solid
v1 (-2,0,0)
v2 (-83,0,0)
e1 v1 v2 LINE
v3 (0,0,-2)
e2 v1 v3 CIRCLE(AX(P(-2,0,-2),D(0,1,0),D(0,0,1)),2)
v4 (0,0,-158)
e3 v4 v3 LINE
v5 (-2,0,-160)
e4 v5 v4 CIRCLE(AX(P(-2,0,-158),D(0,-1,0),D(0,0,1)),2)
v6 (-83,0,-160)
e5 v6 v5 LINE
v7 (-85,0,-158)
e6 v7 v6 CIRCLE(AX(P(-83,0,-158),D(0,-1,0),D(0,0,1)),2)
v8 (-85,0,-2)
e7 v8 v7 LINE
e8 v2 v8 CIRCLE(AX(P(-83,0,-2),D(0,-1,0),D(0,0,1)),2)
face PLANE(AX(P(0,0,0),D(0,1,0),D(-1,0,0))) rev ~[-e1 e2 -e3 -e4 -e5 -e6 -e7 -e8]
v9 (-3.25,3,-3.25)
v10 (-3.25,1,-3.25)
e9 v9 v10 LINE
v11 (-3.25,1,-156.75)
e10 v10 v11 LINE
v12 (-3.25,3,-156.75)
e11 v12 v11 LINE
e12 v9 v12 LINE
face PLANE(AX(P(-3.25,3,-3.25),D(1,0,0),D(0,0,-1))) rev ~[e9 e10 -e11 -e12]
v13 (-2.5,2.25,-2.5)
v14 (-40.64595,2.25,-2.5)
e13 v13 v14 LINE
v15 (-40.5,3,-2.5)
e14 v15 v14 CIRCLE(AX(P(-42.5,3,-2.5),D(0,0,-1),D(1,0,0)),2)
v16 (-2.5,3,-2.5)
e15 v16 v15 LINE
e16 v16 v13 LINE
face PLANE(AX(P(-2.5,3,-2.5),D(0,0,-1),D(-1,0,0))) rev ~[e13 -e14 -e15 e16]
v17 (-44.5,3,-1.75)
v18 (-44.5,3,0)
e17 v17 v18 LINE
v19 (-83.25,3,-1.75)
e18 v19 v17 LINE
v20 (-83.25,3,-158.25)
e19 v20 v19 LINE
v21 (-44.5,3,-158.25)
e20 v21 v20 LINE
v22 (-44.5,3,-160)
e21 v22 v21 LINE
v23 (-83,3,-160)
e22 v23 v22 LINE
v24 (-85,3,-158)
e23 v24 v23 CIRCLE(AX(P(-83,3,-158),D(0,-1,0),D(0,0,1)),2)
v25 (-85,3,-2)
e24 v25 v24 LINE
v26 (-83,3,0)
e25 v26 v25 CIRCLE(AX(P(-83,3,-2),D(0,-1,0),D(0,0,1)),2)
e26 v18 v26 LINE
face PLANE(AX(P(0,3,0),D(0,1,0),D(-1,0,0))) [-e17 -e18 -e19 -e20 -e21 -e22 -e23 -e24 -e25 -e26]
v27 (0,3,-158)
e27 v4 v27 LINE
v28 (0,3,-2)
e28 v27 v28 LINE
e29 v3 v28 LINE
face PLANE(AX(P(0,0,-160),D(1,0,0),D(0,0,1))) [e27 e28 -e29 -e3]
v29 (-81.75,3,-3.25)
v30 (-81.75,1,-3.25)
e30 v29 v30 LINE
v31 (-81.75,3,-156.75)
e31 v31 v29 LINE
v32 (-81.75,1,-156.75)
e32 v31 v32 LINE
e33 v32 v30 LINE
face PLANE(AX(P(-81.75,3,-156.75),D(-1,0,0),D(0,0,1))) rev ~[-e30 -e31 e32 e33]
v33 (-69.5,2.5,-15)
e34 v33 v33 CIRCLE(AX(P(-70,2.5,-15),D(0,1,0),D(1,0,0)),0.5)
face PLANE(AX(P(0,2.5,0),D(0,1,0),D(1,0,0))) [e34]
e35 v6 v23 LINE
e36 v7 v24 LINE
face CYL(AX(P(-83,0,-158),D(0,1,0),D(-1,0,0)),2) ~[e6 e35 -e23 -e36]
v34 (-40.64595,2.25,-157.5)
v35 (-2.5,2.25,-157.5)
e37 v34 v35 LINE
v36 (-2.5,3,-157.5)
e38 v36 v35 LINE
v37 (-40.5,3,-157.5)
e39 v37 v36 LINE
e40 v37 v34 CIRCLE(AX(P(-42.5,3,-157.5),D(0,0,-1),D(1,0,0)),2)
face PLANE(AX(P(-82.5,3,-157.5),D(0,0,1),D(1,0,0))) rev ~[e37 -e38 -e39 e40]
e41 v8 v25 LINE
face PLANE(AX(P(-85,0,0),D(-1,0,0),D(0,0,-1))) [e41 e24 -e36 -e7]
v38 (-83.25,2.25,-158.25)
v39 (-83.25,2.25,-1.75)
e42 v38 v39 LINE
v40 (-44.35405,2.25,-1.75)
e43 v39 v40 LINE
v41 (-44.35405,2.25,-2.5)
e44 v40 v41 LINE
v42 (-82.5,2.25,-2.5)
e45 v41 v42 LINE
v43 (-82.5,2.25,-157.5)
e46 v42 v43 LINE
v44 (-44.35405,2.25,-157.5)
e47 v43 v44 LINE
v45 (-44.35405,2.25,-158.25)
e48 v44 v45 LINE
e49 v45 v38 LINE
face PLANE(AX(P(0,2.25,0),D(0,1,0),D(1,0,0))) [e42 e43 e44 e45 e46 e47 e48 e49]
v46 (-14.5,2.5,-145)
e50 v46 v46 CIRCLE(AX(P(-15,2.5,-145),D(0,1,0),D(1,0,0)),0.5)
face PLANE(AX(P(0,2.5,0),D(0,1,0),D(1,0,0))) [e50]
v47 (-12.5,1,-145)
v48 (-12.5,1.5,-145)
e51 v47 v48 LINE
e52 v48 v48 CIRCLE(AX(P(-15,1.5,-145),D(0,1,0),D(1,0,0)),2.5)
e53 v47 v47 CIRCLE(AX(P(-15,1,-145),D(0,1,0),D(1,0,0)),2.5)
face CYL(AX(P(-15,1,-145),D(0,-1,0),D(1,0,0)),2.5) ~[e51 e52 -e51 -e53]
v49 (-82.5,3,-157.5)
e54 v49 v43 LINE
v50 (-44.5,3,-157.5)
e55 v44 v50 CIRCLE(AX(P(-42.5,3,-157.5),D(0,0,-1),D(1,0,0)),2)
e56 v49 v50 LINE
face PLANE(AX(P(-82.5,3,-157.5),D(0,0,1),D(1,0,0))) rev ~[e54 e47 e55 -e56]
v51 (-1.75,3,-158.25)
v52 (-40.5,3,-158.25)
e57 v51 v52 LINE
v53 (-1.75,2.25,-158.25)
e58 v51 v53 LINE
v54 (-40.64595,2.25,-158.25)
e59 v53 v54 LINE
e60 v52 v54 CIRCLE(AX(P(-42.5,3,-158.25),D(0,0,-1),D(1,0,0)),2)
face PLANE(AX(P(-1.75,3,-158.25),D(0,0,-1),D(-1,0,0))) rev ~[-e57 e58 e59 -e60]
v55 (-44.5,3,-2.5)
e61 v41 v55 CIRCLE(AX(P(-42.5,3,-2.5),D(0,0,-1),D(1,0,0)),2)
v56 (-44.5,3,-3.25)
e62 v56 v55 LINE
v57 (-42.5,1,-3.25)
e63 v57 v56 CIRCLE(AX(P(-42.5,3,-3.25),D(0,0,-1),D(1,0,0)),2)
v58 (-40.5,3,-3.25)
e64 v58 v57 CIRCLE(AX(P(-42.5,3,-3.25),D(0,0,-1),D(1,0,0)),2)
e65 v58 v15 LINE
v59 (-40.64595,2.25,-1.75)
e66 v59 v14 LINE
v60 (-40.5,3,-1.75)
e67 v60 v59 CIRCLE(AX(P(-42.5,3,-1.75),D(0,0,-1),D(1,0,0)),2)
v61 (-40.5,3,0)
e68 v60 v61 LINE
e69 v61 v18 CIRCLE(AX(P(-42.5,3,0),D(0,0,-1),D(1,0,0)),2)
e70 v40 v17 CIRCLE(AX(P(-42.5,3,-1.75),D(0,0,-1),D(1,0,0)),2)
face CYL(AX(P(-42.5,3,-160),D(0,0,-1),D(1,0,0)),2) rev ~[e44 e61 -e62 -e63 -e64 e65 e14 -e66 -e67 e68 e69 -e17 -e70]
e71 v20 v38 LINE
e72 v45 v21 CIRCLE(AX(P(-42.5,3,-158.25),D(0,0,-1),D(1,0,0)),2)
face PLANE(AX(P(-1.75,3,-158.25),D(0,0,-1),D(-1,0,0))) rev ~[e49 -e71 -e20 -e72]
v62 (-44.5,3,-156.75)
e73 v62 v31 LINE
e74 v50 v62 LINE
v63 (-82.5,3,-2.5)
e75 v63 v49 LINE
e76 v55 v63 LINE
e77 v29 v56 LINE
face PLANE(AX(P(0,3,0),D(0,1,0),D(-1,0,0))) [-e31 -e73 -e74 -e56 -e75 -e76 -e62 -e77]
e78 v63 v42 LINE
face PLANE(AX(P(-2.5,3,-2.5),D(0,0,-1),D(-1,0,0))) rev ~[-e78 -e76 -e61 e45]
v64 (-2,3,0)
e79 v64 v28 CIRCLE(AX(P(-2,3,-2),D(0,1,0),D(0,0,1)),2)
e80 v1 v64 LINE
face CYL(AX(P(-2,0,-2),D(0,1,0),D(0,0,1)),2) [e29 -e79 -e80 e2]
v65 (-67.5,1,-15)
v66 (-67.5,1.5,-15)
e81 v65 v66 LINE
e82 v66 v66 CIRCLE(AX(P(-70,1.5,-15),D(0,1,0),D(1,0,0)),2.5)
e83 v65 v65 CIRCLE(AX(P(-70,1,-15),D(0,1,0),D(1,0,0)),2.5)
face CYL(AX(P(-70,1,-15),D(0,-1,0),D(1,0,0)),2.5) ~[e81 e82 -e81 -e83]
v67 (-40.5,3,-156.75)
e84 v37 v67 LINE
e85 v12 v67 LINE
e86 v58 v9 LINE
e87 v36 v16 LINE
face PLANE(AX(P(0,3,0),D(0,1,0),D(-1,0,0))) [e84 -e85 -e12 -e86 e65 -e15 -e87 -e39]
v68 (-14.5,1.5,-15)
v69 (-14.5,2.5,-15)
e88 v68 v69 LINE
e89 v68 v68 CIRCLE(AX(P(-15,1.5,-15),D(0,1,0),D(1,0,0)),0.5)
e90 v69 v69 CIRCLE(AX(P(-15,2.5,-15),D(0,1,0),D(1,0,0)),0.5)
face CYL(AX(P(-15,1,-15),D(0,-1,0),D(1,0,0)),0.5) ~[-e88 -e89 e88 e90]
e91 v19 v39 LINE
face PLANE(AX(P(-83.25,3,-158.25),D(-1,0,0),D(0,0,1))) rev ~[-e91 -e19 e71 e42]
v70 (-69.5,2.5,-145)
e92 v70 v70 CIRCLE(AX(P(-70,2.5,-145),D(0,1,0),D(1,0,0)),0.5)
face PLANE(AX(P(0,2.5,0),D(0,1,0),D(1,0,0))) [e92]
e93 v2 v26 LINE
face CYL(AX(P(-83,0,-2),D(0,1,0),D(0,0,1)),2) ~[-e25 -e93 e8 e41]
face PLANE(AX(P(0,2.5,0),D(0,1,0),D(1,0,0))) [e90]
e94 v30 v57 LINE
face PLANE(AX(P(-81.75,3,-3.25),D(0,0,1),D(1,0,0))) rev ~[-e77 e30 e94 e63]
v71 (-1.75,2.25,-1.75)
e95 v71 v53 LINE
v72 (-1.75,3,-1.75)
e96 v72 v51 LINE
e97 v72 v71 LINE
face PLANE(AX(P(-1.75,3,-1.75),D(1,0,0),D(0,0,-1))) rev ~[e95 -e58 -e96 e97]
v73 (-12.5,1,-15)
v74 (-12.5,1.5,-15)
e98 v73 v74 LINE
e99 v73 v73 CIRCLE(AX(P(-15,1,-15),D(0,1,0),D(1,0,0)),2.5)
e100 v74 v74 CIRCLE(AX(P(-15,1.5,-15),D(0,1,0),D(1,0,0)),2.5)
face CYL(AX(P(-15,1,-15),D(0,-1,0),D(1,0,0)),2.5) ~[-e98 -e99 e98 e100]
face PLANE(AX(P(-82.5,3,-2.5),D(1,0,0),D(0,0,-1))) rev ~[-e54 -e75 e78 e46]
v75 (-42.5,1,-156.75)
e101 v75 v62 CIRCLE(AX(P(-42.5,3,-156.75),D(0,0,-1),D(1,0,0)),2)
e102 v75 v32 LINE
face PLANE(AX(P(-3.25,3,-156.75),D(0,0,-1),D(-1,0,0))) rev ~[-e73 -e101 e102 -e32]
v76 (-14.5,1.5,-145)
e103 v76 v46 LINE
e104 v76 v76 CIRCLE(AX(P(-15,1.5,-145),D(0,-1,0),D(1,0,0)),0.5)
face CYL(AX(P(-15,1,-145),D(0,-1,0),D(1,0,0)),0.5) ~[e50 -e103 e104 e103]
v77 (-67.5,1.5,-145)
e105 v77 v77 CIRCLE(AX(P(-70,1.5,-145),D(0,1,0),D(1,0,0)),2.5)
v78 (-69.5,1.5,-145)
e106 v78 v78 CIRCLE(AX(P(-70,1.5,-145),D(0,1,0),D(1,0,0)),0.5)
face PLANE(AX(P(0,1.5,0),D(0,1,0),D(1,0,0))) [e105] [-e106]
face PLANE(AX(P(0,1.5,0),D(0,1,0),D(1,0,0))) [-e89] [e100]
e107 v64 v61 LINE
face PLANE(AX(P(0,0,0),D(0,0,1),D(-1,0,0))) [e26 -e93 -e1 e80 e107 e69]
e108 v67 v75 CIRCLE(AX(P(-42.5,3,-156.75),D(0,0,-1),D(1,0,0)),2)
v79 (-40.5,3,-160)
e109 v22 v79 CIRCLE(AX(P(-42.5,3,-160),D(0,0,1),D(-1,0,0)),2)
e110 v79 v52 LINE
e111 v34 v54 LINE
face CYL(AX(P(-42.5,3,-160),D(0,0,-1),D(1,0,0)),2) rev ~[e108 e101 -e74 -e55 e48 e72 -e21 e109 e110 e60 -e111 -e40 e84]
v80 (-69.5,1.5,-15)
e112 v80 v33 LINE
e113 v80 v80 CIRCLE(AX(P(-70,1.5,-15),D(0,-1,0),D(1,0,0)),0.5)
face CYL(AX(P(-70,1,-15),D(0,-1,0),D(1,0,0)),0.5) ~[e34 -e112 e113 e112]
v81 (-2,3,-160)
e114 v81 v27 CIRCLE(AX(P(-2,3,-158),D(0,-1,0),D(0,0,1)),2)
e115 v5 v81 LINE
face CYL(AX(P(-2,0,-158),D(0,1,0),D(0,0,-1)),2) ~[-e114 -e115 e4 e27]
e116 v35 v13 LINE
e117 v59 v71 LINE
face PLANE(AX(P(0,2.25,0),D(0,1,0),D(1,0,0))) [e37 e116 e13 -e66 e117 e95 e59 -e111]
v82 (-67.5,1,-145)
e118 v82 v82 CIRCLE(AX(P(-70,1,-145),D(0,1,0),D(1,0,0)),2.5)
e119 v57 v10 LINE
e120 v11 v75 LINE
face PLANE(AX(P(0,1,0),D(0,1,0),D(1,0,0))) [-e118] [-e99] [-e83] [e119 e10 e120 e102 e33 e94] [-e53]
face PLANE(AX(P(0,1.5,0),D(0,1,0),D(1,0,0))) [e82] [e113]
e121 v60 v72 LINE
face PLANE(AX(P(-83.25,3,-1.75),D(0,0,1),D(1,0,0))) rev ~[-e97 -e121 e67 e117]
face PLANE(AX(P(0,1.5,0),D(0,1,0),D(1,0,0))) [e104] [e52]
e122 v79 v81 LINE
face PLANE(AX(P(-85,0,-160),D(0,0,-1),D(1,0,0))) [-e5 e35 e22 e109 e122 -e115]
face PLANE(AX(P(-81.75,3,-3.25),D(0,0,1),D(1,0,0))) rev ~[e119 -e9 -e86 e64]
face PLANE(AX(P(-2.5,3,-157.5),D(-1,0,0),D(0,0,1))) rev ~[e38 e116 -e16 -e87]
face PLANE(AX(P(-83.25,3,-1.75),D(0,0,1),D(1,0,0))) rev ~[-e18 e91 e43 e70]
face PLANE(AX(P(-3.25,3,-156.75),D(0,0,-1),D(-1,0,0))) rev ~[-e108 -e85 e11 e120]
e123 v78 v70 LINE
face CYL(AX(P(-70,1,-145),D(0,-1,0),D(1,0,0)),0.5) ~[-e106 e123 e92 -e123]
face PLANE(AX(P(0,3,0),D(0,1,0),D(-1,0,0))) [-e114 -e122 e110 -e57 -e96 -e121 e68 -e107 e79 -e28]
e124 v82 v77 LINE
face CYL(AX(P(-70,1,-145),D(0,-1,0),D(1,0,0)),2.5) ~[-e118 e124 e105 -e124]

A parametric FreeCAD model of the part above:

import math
import FreeCAD as App
import Part
import Sketcher

V = App.Vector
Q = App.Units.Quantity


def edges_at(feature, points):
    """Names of the edges that pass closest to the given points."""
    edges = feature.Shape.Edges
    near = lambda p: min(range(len(edges)), key=lambda i: edges[i].distToShape(Part.Vertex(*p))[0])
    return sorted({f"Edge{near(p) + 1}" for p in points})

doc = App.newDocument("Part")
params = doc.addObject("Spreadsheet::Sheet", "Params")
for row, (alias, value) in enumerate([
    ("sketch1_width", "85 mm"),
    ("sketch1_height", "160 mm"),
    ("pad1_length", "3 mm"),
    ("fillet_radius", "2 mm"),
    ("sketch2_width", "78.5 mm"),
    ("sketch2_height", "153.5 mm"),
    ("pocket1_length", "2 mm"),
    ("sketch3_width", "80 mm"),
    ("sketch3_height", "155 mm"),
    ("pocket2_length", "0.75 mm"),
    ("sketch4_diameter", "1 mm"),
    ("pad2_length", "1.5 mm"),
    ("sketch5_diameter", "5 mm"),
    ("sketch5_diameter2", "1 mm"),
    ("pad3_length", "0.5 mm"),
    ("sketch6_radius", "2 mm"),
], start=1):
    params.set(f"A{row}", alias)
    params.set(f"B{row}", "=" + value)
    params.setAlias(f"B{row}", alias)

body = doc.addObject("PartDesign::Body", "Body")

# Sketch on XZ plane
sketch1 = body.newObject("Sketcher::SketchObject", "Sketch")
sketch1.AttachmentSupport = (doc.getObject("XZ_Plane"), [""])
sketch1.MapMode = "FlatFace"
sketch1.addGeometry([
    Part.LineSegment(V(-85, 0, 0), V(0, 0, 0)),
    Part.LineSegment(V(0, 0, 0), V(0, -160, 0)),
    Part.LineSegment(V(0, -160, 0), V(-85, -160, 0)),
    Part.LineSegment(V(-85, -160, 0), V(-85, 0, 0)),
], False)
sketch1.addConstraint([
    Sketcher.Constraint("Coincident", 0, 2, 1, 1),
    Sketcher.Constraint("Coincident", 1, 2, 2, 1),
    Sketcher.Constraint("Coincident", 2, 2, 3, 1),
    Sketcher.Constraint("Coincident", 3, 2, 0, 1),
    Sketcher.Constraint("Horizontal", 0),
    Sketcher.Constraint("Vertical", 1),
    Sketcher.Constraint("Horizontal", 2),
    Sketcher.Constraint("Vertical", 3),
    Sketcher.Constraint("Coincident", 0, 2, -1, 1),
    Sketcher.Constraint("DistanceX", 0, 1, 0, 2, Q("85 mm")),
    Sketcher.Constraint("DistanceY", 1, 2, 1, 1, Q("160 mm")),
])
sketch1.setExpression("Constraints[9]", "Params.sketch1_width")
sketch1.setExpression("Constraints[10]", "Params.sketch1_height")
pad1 = body.newObject("PartDesign::Pad", "Pad")
pad1.Profile = sketch1
pad1.setExpression("Length", "Params.pad1_length")
pad1.Reversed = True
doc.recompute()

fillet = body.newObject("PartDesign::Fillet", "Fillet")
fillet.Base = (pad1, edges_at(pad1, [
    (0, 1.5, 0),
    (-85, 1.5, 0),
    (-85, 1.5, -160),
    (0, 1.5, -160),
]))
fillet.setExpression("Radius", "Params.fillet_radius")

# Sketch on XZ plane
sketch2 = body.newObject("Sketcher::SketchObject", "Sketch001")
sketch2.AttachmentSupport = (doc.getObject("XZ_Plane"), [""])
sketch2.MapMode = "FlatFace"
sketch2.AttachmentOffset = App.Placement(V(0, 0, -3), App.Rotation())
sketch2.addGeometry([
    Part.LineSegment(V(-3.25, -156.75, 0), V(-81.75, -156.75, 0)),
    Part.LineSegment(V(-81.75, -156.75, 0), V(-81.75, -3.25, 0)),
    Part.LineSegment(V(-81.75, -3.25, 0), V(-3.25, -3.25, 0)),
    Part.LineSegment(V(-3.25, -3.25, 0), V(-3.25, -156.75, 0)),
], False)
sketch2.addConstraint([
    Sketcher.Constraint("Coincident", 0, 2, 1, 1),
    Sketcher.Constraint("Coincident", 1, 2, 2, 1),
    Sketcher.Constraint("Coincident", 2, 2, 3, 1),
    Sketcher.Constraint("Coincident", 3, 2, 0, 1),
    Sketcher.Constraint("Horizontal", 0),
    Sketcher.Constraint("Vertical", 1),
    Sketcher.Constraint("Horizontal", 2),
    Sketcher.Constraint("Vertical", 3),
    Sketcher.Constraint("DistanceX", 0, 2, 0, 1, Q("78.5 mm")),
    Sketcher.Constraint("DistanceY", 1, 1, 1, 2, Q("153.5 mm")),
    Sketcher.Constraint("DistanceX", 0, 2, -1, 1, Q("81.75 mm")),
    Sketcher.Constraint("DistanceY", 0, 2, -1, 1, Q("156.75 mm")),
])
sketch2.setExpression("Constraints[8]", "Params.sketch2_width")
sketch2.setExpression("Constraints[9]", "Params.sketch2_height")
pocket1 = body.newObject("PartDesign::Pocket", "Pocket")
pocket1.Profile = sketch2
pocket1.setExpression("Length", "Params.pocket1_length")
pocket1.Reversed = True

# Sketch on XZ plane
sketch3 = body.newObject("Sketcher::SketchObject", "Sketch002")
sketch3.AttachmentSupport = (doc.getObject("XZ_Plane"), [""])
sketch3.MapMode = "FlatFace"
sketch3.AttachmentOffset = App.Placement(V(0, 0, -3), App.Rotation())
sketch3.addGeometry([
    Part.LineSegment(V(-1.75, -158.25, 0), V(-83.25, -158.25, 0)),  # 0
    Part.LineSegment(V(-83.25, -158.25, 0), V(-83.25, -1.75, 0)),  # 1
    Part.LineSegment(V(-83.25, -1.75, 0), V(-1.75, -1.75, 0)),  # 2
    Part.LineSegment(V(-1.75, -1.75, 0), V(-1.75, -158.25, 0)),  # 3
    Part.LineSegment(V(-2.5, -2.5, 0), V(-82.5, -2.5, 0)),  # 4
    Part.LineSegment(V(-82.5, -2.5, 0), V(-82.5, -157.5, 0)),  # 5
    Part.LineSegment(V(-82.5, -157.5, 0), V(-2.5, -157.5, 0)),  # 6
    Part.LineSegment(V(-2.5, -157.5, 0), V(-2.5, -2.5, 0)),  # 7
], False)
sketch3.addConstraint([
    Sketcher.Constraint("Coincident", 0, 2, 1, 1),
    Sketcher.Constraint("Coincident", 1, 2, 2, 1),
    Sketcher.Constraint("Coincident", 2, 2, 3, 1),
    Sketcher.Constraint("Coincident", 3, 2, 0, 1),
    Sketcher.Constraint("Coincident", 4, 2, 5, 1),
    Sketcher.Constraint("Coincident", 5, 2, 6, 1),
    Sketcher.Constraint("Coincident", 6, 2, 7, 1),
    Sketcher.Constraint("Coincident", 7, 2, 4, 1),
    Sketcher.Constraint("Horizontal", 0),
    Sketcher.Constraint("Vertical", 1),
    Sketcher.Constraint("Horizontal", 2),
    Sketcher.Constraint("Vertical", 3),
    Sketcher.Constraint("Horizontal", 4),
    Sketcher.Constraint("Vertical", 5),
    Sketcher.Constraint("Horizontal", 6),
    Sketcher.Constraint("Vertical", 7),
    Sketcher.Constraint("DistanceY", 4, 2, -1, 1, Q("2.5 mm")),
    Sketcher.Constraint("DistanceX", 6, 2, -1, 1, Q("2.5 mm")),
    Sketcher.Constraint("DistanceX", 4, 2, 4, 1, Q("80 mm")),
    Sketcher.Constraint("DistanceY", 5, 2, 5, 1, Q("155 mm")),
    Sketcher.Constraint("DistanceX", 1, 2, 4, 2, Q("0.75 mm")),
    Sketcher.Constraint("DistanceY", 4, 2, 1, 2, Q("0.75 mm")),
    Sketcher.Constraint("DistanceY", 0, 2, 5, 2, Q("0.75 mm")),
    Sketcher.Constraint("DistanceX", 6, 2, 3, 2, Q("0.75 mm")),
])
sketch3.setExpression("Constraints[18]", "Params.sketch3_width")
sketch3.setExpression("Constraints[19]", "Params.sketch3_height")
pocket2 = body.newObject("PartDesign::Pocket", "Pocket001")
pocket2.Profile = sketch3
pocket2.setExpression("Length", "Params.pocket2_length")
pocket2.Reversed = True

# Sketch on XZ plane
sketch4 = body.newObject("Sketcher::SketchObject", "Sketch003")
sketch4.AttachmentSupport = (doc.getObject("XZ_Plane"), [""])
sketch4.MapMode = "FlatFace"
sketch4.AttachmentOffset = App.Placement(V(0, 0, -1), App.Rotation())
sketch4.addGeometry([
    Part.Circle(V(-70, -15, 0), V(0, 0, 1), 0.5),
    Part.Circle(V(-15, -15, 0), V(0, 0, 1), 0.5),
    Part.Circle(V(-15, -145, 0), V(0, 0, 1), 0.5),
    Part.Circle(V(-70, -145, 0), V(0, 0, 1), 0.5),
], False)
sketch4.addConstraint([
    Sketcher.Constraint("Equal", 0, 1),
    Sketcher.Constraint("Equal", 1, 2),
    Sketcher.Constraint("Equal", 2, 3),
    Sketcher.Constraint("Horizontal", 0, 3, 1, 3),
    Sketcher.Constraint("Horizontal", 2, 3, 3, 3),
    Sketcher.Constraint("Vertical", 1, 3, 2, 3),
    Sketcher.Constraint("Vertical", 0, 3, 3, 3),
    Sketcher.Constraint("Diameter", 0, Q("1 mm")),
    Sketcher.Constraint("DistanceY", 0, 3, -1, 1, Q("15 mm")),
    Sketcher.Constraint("DistanceX", 1, 3, -1, 1, Q("15 mm")),
    Sketcher.Constraint("DistanceX", 0, 3, -1, 1, Q("70 mm")),
    Sketcher.Constraint("DistanceY", 2, 3, -1, 1, Q("145 mm")),
])
sketch4.setExpression("Constraints[7]", "Params.sketch4_diameter")
pad2 = body.newObject("PartDesign::Pad", "Pad001")
pad2.Profile = sketch4
pad2.setExpression("Length", "Params.pad2_length")
pad2.Reversed = True

# Sketch on XZ plane
sketch5 = body.newObject("Sketcher::SketchObject", "Sketch004")
sketch5.AttachmentSupport = (doc.getObject("XZ_Plane"), [""])
sketch5.MapMode = "FlatFace"
sketch5.AttachmentOffset = App.Placement(V(0, 0, -1), App.Rotation())
sketch5.addGeometry([
    Part.Circle(V(-70, -15, 0), V(0, 0, 1), 2.5),  # 0
    Part.Circle(V(-15, -15, 0), V(0, 0, 1), 2.5),  # 1
    Part.Circle(V(-15, -15, 0), V(0, 0, 1), 0.5),  # 2
    Part.Circle(V(-70, -145, 0), V(0, 0, 1), 2.5),  # 3
    Part.Circle(V(-70, -145, 0), V(0, 0, 1), 0.5),  # 4
    Part.Circle(V(-15, -145, 0), V(0, 0, 1), 2.5),  # 5
], False)
sketch5.addConstraint([
    Sketcher.Constraint("Coincident", 2, 3, 1, 3),
    Sketcher.Constraint("Coincident", 4, 3, 3, 3),
    Sketcher.Constraint("Equal", 0, 1),
    Sketcher.Constraint("Equal", 1, 3),
    Sketcher.Constraint("Equal", 2, 4),
    Sketcher.Constraint("Equal", 3, 5),
    Sketcher.Constraint("Horizontal", 0, 3, 1, 3),
    Sketcher.Constraint("Horizontal", 4, 3, 5, 3),
    Sketcher.Constraint("Vertical", 0, 3, 3, 3),
    Sketcher.Constraint("Vertical", 2, 3, 5, 3),
    Sketcher.Constraint("Diameter", 0, Q("5 mm")),
    Sketcher.Constraint("Diameter", 2, Q("1 mm")),
    Sketcher.Constraint("DistanceY", 0, 3, -1, 1, Q("15 mm")),
    Sketcher.Constraint("DistanceX", 1, 3, -1, 1, Q("15 mm")),
    Sketcher.Constraint("DistanceX", 0, 3, -1, 1, Q("70 mm")),
    Sketcher.Constraint("DistanceY", 3, 3, -1, 1, Q("145 mm")),
])
sketch5.setExpression("Constraints[10]", "Params.sketch5_diameter")
sketch5.setExpression("Constraints[11]", "Params.sketch5_diameter2")
pad3 = body.newObject("PartDesign::Pad", "Pad002")
pad3.Profile = sketch5
pad3.setExpression("Length", "Params.pad3_length")
pad3.Reversed = True

# Sketch on XY plane
sketch6 = body.newObject("Sketcher::SketchObject", "Sketch005")
sketch6.AttachmentSupport = (doc.getObject("XY_Plane"), [""])
sketch6.MapMode = "FlatFace"
sketch6.AttachmentOffset = App.Placement(V(0, 0, -160), App.Rotation())
sketch6.addGeometry([
    Part.LineSegment(V(-44.5, 3, 0), V(-40.5, 3, 0)),
    Part.ArcOfCircle(Part.Circle(V(-42.5, 3, 0), V(0, 0, 1), 2), math.radians(180), math.radians(360)),
], False)
sketch6.addConstraint([
    Sketcher.Constraint("Coincident", 0, 1, 1, 1),
    Sketcher.Constraint("Coincident", 1, 2, 0, 2),
    Sketcher.Constraint("Horizontal", 0),
    Sketcher.Constraint("Horizontal", 1, 3, 0, 1),
    Sketcher.Constraint("DistanceY", -1, 1, 1, 3, Q("3 mm")),
    Sketcher.Constraint("Radius", 1, Q("2 mm")),
    Sketcher.Constraint("DistanceX", 1, 3, -1, 1, Q("42.5 mm")),
])
sketch6.setExpression("Constraints[5]", "Params.sketch6_radius")
pocket3 = body.newObject("PartDesign::Pocket", "Pocket002")
pocket3.Profile = sketch6
pocket3.Type = "ThroughAll"
pocket3.Reversed = True

doc.recompute()
